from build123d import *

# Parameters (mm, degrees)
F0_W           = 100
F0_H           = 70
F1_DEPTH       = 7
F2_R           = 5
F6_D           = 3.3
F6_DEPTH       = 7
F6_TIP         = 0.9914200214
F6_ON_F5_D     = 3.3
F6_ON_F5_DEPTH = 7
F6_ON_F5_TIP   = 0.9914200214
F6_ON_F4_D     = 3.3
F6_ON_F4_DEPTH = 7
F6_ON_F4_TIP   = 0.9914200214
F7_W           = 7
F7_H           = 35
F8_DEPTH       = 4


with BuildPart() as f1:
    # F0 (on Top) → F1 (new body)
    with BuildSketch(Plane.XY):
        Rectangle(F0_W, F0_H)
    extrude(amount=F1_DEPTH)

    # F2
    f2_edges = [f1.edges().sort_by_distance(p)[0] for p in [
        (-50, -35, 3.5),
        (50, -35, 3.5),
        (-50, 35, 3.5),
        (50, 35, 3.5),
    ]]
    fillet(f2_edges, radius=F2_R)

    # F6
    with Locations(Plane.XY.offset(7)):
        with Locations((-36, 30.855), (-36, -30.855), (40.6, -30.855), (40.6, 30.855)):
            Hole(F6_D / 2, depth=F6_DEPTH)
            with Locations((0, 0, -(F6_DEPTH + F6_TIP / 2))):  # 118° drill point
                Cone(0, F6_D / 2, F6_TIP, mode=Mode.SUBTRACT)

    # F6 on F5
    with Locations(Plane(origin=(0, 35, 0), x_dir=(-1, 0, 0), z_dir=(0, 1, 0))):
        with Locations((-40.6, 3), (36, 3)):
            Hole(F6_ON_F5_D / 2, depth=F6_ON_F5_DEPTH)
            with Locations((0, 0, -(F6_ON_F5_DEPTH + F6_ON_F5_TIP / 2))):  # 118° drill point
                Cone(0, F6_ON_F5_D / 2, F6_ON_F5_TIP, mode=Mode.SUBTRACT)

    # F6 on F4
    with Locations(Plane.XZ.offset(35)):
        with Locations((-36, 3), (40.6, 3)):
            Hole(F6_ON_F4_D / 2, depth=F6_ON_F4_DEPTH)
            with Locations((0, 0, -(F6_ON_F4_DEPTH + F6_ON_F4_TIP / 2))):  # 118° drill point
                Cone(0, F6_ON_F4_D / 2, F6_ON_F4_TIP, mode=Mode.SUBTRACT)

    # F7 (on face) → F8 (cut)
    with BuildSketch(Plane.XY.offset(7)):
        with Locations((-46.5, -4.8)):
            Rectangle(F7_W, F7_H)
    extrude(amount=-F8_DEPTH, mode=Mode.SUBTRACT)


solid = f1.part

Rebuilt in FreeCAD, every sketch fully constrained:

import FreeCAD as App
import Part
import Sketcher
from FreeCAD import Vector
Q = App.Units.Quantity


def edges_at(feature, points):
    """Names of the edges that pass closest to the given points."""
    edges = feature.Shape.Edges
    near = lambda p: min(range(len(edges)), key=lambda i: edges[i].distToShape(Part.Vertex(*p))[0])
    return sorted({f"Edge{near(p) + 1}" for p in points})


def add_polygon(sketch, points):
    """Adds a closed chain of lines whose ends are joined by coincident constraints."""
    first, n = sketch.GeometryCount, len(points)
    for a, b in zip(points, points[1:] + points[:1]):
        sketch.addGeometry(Part.LineSegment(App.Vector(*a, 0), App.Vector(*b, 0)), False)
    for i in range(n):
        sketch.addConstraint(Sketcher.Constraint("Coincident", first + i, 2, first + (i + 1) % n, 1))

doc = App.newDocument("Part")
body = doc.addObject("PartDesign::Body", "Body")

sketch1 = body.newObject("Sketcher::SketchObject", "Sketch")
sketch1.AttachmentSupport = (doc.getObject("XY_Plane"), [""])
sketch1.MapMode = "FlatFace"
add_polygon(sketch1, [(-50, 35), (-50, -35), (50, -35), (50, 35)])
sketch1.addConstraint([
    Sketcher.Constraint("Vertical", 0),
    Sketcher.Constraint("Horizontal", 1),
    Sketcher.Constraint("Vertical", 2),
    Sketcher.Constraint("Horizontal", 3),
    Sketcher.Constraint("Symmetric", 0, 2, 2, 2, -1, 1),
    Sketcher.Constraint("DistanceX", 1, 1, 1, 2, Q("100 mm")),
    Sketcher.Constraint("DistanceY", 0, 2, 0, 1, Q("70 mm")),
])
pad1 = body.newObject("PartDesign::Pad", "Pad")
pad1.Profile = sketch1
pad1.Length = 7
doc.recompute()

fillet = body.newObject("PartDesign::Fillet", "Fillet")
fillet.Base = (pad1, edges_at(pad1, [
    (-50, -35, 3.5),
    (50, -35, 3.5),
    (-50, 35, 3.5),
    (50, 35, 3.5),
]))
fillet.Radius = 5

sketch2 = body.newObject("Sketcher::SketchObject", "Sketch001")
sketch2.AttachmentSupport = (doc.getObject("XY_Plane"), [""])
sketch2.MapMode = "FlatFace"
sketch2.AttachmentOffset = App.Placement(Vector(0, 0, 7), App.Rotation())
sketch2.addGeometry([
    Part.Circle(Vector(-36, 30.9, 0), Vector(0, 0, 1), 1.6),
    Part.Circle(Vector(-36, -30.9, 0), Vector(0, 0, 1), 1.6),
    Part.Circle(Vector(40.6, -30.9, 0), Vector(0, 0, 1), 1.6),
    Part.Circle(Vector(40.6, 30.9, 0), Vector(0, 0, 1), 1.6),
], False)
sketch2.addConstraint([
    Sketcher.Constraint("Equal", 0, 1),
    Sketcher.Constraint("Equal", 1, 2),
    Sketcher.Constraint("Equal", 2, 3),
    Sketcher.Constraint("Symmetric", 0, 3, 1, 3, -1),
    Sketcher.Constraint("Symmetric", 2, 3, 3, 3, -1),
    Sketcher.Constraint("Horizontal", 1, 3, 2, 3),
    Sketcher.Constraint("Diameter", 0, Q("3.3 mm")),
    Sketcher.Constraint("DistanceX", 0, 3, -1, 1, Q("36 mm")),
    Sketcher.Constraint("DistanceX", -1, 1, 2, 3, Q("40.6 mm")),
    Sketcher.Constraint("DistanceY", 1, 3, 0, 3, Q("61.71 mm")),
])
doc.recompute()
hole = body.newObject("PartDesign::Hole", "Hole")
hole.Profile = sketch2
hole.ThreadType = "None"
hole.Diameter = 3.3
hole.DepthType = "Dimension"
hole.Depth = 7
hole.DrillPoint = "Angled"
hole.DrillPointAngle = 118

sketch3 = body.newObject("Sketcher::SketchObject", "Sketch002")
sketch3.AttachmentSupport = (doc.getObject("XZ_Plane"), [""])
sketch3.MapMode = "FlatFace"
sketch3.AttachmentOffset = App.Placement(Vector(0, 0, -35), App.Rotation())
sketch3.addGeometry([
    Part.Circle(Vector(40.6, 3, 0), Vector(0, 0, 1), 1.6),
    Part.Circle(Vector(-36, 3, 0), Vector(0, 0, 1), 1.6),
], False)
sketch3.addConstraint([
    Sketcher.Constraint("Equal", 0, 1),
    Sketcher.Constraint("Horizontal", 0, 3, 1, 3),
    Sketcher.Constraint("Diameter", 0, Q("3.3 mm")),
    Sketcher.Constraint("DistanceY", -1, 1, 0, 3, Q("3 mm")),
    Sketcher.Constraint("DistanceX", 1, 3, -1, 1, Q("36 mm")),
    Sketcher.Constraint("DistanceX", -1, 1, 0, 3, Q("40.6 mm")),
])
doc.recompute()
hole2 = body.newObject("PartDesign::Hole", "Hole001")
hole2.Profile = sketch3
hole2.ThreadType = "None"
hole2.Diameter = 3.3
hole2.DepthType = "Dimension"
hole2.Depth = 7
hole2.DrillPoint = "Angled"
hole2.DrillPointAngle = 118
hole2.Reversed = True

sketch4 = body.newObject("Sketcher::SketchObject", "Sketch003")
sketch4.AttachmentSupport = (doc.getObject("XZ_Plane"), [""])
sketch4.MapMode = "FlatFace"
sketch4.AttachmentOffset = App.Placement(Vector(0, 0, 35), App.Rotation())
sketch4.addGeometry([
    Part.Circle(Vector(-36, 3, 0), Vector(0, 0, 1), 1.6),
    Part.Circle(Vector(40.6, 3, 0), Vector(0, 0, 1), 1.6),
], False)
sketch4.addConstraint([
    Sketcher.Constraint("Equal", 0, 1),
    Sketcher.Constraint("Horizontal", 0, 3, 1, 3),
    Sketcher.Constraint("Diameter", 0, Q("3.3 mm")),
    Sketcher.Constraint("DistanceX", 0, 3, -1, 1, Q("36 mm")),
    Sketcher.Constraint("DistanceY", -1, 1, 0, 3, Q("3 mm")),
    Sketcher.Constraint("DistanceX", -1, 1, 1, 3, Q("40.6 mm")),
])
doc.recompute()
hole3 = body.newObject("PartDesign::Hole", "Hole002")
hole3.Profile = sketch4
hole3.ThreadType = "None"
hole3.Diameter = 3.3
hole3.DepthType = "Dimension"
hole3.Depth = 7
hole3.DrillPoint = "Angled"
hole3.DrillPointAngle = 118

sketch5 = body.newObject("Sketcher::SketchObject", "Sketch004")
sketch5.AttachmentSupport = (doc.getObject("XY_Plane"), [""])
sketch5.MapMode = "FlatFace"
sketch5.AttachmentOffset = App.Placement(Vector(0, 0, 7), App.Rotation())
add_polygon(sketch5, [(-50, 13), (-50, -22), (-43, -22), (-43, 13)])
sketch5.addConstraint([
    Sketcher.Constraint("Vertical", 0),
    Sketcher.Constraint("Horizontal", 1),
    Sketcher.Constraint("Vertical", 2),
    Sketcher.Constraint("Horizontal", 3),
    Sketcher.Constraint("DistanceX", 1, 1, 1, 2, Q("7 mm")),
    Sketcher.Constraint("DistanceY", 0, 2, 0, 1, Q("35 mm")),
    Sketcher.Constraint("DistanceX", 0, 2, -1, 1, Q("50 mm")),
    Sketcher.Constraint("DistanceY", 0, 2, -1, 1, Q("22.3 mm")),
])
pocket1 = body.newObject("PartDesign::Pocket", "Pocket")
pocket1.Profile = sketch5
pocket1.Length = 4

doc.recompute()
